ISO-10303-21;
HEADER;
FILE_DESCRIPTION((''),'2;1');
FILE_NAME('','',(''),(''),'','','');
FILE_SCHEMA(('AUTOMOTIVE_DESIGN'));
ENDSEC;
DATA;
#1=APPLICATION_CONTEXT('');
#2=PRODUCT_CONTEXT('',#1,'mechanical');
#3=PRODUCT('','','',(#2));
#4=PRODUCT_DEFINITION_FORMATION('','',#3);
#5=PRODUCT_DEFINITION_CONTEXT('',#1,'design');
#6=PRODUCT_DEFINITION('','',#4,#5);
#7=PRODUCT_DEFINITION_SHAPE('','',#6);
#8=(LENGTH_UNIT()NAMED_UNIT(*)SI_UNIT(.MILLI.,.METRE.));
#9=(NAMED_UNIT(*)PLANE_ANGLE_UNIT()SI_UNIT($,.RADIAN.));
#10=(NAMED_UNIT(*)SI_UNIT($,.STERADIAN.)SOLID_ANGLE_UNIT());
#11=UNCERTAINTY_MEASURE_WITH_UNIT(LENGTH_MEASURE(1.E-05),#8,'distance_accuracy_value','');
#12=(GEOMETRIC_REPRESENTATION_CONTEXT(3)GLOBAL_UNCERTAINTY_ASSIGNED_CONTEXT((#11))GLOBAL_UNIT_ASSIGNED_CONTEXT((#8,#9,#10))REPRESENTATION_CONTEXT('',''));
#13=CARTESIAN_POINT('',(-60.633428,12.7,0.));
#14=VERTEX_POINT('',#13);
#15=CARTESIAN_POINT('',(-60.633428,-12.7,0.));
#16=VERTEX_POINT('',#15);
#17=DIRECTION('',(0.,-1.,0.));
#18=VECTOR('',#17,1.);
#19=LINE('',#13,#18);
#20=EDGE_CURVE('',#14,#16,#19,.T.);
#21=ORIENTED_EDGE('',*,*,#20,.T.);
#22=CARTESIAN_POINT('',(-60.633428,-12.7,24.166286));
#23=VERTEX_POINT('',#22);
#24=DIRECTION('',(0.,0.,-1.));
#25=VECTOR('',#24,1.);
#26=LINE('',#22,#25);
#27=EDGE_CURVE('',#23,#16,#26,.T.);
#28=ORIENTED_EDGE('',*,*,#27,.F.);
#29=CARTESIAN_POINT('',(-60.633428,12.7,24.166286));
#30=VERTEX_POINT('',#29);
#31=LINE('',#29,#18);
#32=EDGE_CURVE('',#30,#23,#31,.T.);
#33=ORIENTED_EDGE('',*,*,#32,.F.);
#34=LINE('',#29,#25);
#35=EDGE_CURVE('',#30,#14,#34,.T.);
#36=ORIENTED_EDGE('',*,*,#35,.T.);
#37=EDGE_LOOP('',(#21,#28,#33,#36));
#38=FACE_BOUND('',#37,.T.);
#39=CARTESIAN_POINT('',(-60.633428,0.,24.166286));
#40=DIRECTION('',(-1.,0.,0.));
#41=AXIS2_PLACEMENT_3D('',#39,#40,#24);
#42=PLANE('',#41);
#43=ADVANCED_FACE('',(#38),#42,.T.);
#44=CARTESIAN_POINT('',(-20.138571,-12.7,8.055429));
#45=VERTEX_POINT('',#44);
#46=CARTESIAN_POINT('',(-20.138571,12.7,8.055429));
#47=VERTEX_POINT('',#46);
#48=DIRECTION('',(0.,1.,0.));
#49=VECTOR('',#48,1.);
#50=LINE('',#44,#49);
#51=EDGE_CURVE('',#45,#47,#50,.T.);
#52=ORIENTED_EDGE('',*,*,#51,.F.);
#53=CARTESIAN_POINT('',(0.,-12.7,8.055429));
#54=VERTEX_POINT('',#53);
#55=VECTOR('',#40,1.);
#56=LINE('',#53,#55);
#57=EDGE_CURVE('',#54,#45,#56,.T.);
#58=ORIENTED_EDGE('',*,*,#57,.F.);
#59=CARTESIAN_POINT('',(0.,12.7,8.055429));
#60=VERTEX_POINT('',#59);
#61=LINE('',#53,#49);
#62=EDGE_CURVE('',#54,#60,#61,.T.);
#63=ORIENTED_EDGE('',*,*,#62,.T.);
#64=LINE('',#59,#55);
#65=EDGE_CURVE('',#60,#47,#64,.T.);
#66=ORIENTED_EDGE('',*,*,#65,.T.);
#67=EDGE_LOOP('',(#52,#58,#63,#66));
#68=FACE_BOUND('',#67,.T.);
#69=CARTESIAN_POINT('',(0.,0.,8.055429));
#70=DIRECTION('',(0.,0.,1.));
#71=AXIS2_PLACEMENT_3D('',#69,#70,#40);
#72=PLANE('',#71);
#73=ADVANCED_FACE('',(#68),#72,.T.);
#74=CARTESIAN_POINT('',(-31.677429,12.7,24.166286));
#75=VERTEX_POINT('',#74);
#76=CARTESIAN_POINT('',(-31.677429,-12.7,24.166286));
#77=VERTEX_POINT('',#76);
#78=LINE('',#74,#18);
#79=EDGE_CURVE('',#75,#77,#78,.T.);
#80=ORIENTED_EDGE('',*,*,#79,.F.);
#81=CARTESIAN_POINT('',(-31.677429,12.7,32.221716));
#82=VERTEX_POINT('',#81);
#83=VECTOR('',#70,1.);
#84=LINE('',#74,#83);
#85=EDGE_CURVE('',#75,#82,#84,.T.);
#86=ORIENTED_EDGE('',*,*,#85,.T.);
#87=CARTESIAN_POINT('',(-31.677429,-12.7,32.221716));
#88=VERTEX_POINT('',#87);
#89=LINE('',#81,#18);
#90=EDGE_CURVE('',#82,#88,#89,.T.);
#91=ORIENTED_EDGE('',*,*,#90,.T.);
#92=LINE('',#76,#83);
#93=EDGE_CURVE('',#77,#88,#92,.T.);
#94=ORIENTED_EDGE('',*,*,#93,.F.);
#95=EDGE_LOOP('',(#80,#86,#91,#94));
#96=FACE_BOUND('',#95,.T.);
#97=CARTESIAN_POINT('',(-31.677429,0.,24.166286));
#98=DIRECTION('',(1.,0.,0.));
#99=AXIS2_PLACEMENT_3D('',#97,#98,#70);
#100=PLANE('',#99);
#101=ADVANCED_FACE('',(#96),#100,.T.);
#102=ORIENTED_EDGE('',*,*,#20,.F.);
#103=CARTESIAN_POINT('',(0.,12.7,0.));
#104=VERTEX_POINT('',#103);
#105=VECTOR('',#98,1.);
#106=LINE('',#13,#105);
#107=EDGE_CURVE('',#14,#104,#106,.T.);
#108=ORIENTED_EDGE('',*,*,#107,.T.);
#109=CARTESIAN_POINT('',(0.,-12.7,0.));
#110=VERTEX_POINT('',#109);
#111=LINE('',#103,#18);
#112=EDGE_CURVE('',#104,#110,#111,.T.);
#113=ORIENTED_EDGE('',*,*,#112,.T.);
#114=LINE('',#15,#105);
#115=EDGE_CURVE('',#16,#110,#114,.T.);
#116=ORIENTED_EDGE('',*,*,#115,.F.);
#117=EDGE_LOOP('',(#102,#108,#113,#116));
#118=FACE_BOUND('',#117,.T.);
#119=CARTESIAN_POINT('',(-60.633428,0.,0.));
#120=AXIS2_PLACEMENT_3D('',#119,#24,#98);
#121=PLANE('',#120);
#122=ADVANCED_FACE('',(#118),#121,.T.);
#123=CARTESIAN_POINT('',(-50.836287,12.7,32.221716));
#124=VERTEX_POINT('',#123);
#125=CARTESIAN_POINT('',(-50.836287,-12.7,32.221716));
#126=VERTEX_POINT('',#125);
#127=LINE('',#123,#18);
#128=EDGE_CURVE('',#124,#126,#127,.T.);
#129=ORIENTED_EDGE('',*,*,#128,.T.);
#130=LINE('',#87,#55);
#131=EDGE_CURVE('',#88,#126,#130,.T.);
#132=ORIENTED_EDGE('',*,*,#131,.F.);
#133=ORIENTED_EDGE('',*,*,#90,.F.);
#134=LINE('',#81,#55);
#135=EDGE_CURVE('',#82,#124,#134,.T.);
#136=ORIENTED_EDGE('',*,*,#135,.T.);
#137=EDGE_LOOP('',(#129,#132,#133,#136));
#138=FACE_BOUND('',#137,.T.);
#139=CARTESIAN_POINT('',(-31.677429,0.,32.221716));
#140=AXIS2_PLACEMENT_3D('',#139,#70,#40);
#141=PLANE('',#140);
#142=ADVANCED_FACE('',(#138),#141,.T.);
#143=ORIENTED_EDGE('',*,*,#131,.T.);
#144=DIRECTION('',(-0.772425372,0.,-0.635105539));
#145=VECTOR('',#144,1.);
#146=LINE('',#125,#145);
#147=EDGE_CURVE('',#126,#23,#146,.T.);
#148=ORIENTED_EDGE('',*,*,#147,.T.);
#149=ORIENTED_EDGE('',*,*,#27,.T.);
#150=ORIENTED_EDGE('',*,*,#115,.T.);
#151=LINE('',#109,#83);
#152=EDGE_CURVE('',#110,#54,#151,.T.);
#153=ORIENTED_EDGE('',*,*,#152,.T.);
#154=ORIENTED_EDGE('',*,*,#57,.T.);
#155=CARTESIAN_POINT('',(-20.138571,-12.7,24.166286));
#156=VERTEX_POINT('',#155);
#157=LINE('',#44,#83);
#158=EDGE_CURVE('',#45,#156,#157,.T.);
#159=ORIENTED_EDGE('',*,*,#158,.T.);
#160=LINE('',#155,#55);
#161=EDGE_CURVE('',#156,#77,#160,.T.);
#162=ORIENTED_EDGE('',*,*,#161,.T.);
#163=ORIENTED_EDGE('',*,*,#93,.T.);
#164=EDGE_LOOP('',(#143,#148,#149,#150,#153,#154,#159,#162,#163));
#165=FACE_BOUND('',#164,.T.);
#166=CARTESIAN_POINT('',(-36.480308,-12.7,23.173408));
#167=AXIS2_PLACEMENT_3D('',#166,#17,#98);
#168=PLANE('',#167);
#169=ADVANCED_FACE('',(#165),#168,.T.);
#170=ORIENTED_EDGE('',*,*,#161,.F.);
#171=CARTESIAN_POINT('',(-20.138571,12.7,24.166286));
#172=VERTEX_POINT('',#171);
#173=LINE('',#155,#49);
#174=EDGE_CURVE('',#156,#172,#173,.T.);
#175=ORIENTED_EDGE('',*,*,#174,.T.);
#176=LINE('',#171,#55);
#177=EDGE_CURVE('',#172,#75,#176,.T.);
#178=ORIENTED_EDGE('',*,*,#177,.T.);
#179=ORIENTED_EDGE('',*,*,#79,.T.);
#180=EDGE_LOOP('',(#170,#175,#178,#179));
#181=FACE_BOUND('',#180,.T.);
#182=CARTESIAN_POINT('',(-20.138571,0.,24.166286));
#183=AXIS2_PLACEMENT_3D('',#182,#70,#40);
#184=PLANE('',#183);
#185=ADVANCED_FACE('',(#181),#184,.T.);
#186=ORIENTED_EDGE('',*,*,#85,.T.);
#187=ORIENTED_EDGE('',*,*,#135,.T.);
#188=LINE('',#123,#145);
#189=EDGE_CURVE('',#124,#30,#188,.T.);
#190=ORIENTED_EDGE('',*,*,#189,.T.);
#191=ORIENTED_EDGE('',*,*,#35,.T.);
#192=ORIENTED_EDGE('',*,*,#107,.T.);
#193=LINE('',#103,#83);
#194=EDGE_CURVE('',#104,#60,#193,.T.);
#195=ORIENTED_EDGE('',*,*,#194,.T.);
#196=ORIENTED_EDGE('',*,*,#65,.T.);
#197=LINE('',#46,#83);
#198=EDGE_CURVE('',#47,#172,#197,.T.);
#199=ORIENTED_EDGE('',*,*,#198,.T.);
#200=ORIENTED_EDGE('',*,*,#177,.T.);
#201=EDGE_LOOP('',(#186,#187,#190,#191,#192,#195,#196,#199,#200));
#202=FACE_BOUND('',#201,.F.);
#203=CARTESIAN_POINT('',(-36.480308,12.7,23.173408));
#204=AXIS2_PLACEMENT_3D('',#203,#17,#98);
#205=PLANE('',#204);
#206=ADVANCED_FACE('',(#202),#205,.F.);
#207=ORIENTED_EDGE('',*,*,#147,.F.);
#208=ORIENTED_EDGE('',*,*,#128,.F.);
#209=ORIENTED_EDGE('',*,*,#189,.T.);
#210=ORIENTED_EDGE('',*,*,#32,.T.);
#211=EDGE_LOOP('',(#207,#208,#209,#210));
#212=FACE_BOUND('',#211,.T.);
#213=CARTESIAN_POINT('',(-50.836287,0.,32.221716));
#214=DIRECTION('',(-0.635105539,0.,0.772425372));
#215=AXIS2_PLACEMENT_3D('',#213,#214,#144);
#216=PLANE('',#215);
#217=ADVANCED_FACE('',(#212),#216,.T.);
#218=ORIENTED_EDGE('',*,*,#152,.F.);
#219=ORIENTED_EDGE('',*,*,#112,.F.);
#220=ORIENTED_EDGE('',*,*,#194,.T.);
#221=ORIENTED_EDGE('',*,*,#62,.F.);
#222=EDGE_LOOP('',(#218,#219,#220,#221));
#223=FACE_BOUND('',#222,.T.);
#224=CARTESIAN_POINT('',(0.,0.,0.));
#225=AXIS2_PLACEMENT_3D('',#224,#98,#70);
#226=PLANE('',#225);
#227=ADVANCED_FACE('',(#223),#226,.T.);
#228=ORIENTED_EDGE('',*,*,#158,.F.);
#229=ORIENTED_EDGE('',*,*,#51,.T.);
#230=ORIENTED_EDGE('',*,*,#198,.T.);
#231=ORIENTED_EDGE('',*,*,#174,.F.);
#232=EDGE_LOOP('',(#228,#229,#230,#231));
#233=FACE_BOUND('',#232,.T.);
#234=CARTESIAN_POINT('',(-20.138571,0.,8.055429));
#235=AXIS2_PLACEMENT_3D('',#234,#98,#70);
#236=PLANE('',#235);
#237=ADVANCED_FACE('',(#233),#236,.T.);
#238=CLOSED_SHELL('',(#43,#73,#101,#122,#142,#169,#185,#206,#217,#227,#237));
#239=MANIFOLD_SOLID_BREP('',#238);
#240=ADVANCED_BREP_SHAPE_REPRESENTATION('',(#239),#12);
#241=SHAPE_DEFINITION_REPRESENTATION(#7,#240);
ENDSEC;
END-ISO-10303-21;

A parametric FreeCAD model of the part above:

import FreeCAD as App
import Part
import Sketcher

V = App.Vector
Q = App.Units.Quantity


def add_polygon(sketch, points):
    """Adds a closed chain of lines whose ends are joined by coincident constraints."""
    first, n = sketch.GeometryCount, len(points)
    for a, b in zip(points, points[1:] + points[:1]):
        sketch.addGeometry(Part.LineSegment(App.Vector(*a, 0), App.Vector(*b, 0)), False)
    for i in range(n):
        sketch.addConstraint(Sketcher.Constraint("Coincident", first + i, 2, first + (i + 1) % n, 1))

doc = App.newDocument("Part")
body = doc.addObject("PartDesign::Body", "Body")

sketch1 = doc.addObject("Sketcher::SketchObject", "Sketch")
body.addObject(sketch1)
sketch1.AttachmentSupport = (doc.XZ_Plane, [""])
sketch1.MapMode = "FlatFace"
add_polygon(sketch1, [(-20, 24), (-32, 24), (-32, 32), (-51, 32), (-61, 24), (-61, 0), (0, 0), (0, 8), (-20, 8)])
sketch1.addConstraint([
    Sketcher.Constraint("Horizontal", 0),
    Sketcher.Constraint("Vertical", 1),
    Sketcher.Constraint("Horizontal", 2),
    Sketcher.Constraint("Vertical", 4),
    Sketcher.Constraint("Horizontal", 5),
    Sketcher.Constraint("Vertical", 6),
    Sketcher.Constraint("Horizontal", 7),
    Sketcher.Constraint("Vertical", 8),
    Sketcher.Constraint("Coincident", 5, 2, -1, 1),
    Sketcher.Constraint("Horizontal", 0, 2, 3, 2),
    Sketcher.Constraint("Equal", 1, 6),
    Sketcher.Constraint("DistanceX", 3, 2, 0, 2, Q("1.14 in")),
    Sketcher.Constraint("DistanceX", 0, 2, 0, 1, 11.538858),
    Sketcher.Constraint("DistanceX", 5, 1, 5, 2, 60.633428),
    Sketcher.Constraint("DistanceY", 1, 1, 1, 2, 8.05543),
    Sketcher.Constraint("Distance", 3, 12.683608),
    Sketcher.Constraint("DistanceY", 4, 2, 4, 1, 24.166286),
])
pad1 = doc.addObject("PartDesign::Pad", "Pad")
body.addObject(pad1)
pad1.Profile = sketch1
pad1.Length = Q("1 in")
pad1.Midplane = True

doc.recompute()
